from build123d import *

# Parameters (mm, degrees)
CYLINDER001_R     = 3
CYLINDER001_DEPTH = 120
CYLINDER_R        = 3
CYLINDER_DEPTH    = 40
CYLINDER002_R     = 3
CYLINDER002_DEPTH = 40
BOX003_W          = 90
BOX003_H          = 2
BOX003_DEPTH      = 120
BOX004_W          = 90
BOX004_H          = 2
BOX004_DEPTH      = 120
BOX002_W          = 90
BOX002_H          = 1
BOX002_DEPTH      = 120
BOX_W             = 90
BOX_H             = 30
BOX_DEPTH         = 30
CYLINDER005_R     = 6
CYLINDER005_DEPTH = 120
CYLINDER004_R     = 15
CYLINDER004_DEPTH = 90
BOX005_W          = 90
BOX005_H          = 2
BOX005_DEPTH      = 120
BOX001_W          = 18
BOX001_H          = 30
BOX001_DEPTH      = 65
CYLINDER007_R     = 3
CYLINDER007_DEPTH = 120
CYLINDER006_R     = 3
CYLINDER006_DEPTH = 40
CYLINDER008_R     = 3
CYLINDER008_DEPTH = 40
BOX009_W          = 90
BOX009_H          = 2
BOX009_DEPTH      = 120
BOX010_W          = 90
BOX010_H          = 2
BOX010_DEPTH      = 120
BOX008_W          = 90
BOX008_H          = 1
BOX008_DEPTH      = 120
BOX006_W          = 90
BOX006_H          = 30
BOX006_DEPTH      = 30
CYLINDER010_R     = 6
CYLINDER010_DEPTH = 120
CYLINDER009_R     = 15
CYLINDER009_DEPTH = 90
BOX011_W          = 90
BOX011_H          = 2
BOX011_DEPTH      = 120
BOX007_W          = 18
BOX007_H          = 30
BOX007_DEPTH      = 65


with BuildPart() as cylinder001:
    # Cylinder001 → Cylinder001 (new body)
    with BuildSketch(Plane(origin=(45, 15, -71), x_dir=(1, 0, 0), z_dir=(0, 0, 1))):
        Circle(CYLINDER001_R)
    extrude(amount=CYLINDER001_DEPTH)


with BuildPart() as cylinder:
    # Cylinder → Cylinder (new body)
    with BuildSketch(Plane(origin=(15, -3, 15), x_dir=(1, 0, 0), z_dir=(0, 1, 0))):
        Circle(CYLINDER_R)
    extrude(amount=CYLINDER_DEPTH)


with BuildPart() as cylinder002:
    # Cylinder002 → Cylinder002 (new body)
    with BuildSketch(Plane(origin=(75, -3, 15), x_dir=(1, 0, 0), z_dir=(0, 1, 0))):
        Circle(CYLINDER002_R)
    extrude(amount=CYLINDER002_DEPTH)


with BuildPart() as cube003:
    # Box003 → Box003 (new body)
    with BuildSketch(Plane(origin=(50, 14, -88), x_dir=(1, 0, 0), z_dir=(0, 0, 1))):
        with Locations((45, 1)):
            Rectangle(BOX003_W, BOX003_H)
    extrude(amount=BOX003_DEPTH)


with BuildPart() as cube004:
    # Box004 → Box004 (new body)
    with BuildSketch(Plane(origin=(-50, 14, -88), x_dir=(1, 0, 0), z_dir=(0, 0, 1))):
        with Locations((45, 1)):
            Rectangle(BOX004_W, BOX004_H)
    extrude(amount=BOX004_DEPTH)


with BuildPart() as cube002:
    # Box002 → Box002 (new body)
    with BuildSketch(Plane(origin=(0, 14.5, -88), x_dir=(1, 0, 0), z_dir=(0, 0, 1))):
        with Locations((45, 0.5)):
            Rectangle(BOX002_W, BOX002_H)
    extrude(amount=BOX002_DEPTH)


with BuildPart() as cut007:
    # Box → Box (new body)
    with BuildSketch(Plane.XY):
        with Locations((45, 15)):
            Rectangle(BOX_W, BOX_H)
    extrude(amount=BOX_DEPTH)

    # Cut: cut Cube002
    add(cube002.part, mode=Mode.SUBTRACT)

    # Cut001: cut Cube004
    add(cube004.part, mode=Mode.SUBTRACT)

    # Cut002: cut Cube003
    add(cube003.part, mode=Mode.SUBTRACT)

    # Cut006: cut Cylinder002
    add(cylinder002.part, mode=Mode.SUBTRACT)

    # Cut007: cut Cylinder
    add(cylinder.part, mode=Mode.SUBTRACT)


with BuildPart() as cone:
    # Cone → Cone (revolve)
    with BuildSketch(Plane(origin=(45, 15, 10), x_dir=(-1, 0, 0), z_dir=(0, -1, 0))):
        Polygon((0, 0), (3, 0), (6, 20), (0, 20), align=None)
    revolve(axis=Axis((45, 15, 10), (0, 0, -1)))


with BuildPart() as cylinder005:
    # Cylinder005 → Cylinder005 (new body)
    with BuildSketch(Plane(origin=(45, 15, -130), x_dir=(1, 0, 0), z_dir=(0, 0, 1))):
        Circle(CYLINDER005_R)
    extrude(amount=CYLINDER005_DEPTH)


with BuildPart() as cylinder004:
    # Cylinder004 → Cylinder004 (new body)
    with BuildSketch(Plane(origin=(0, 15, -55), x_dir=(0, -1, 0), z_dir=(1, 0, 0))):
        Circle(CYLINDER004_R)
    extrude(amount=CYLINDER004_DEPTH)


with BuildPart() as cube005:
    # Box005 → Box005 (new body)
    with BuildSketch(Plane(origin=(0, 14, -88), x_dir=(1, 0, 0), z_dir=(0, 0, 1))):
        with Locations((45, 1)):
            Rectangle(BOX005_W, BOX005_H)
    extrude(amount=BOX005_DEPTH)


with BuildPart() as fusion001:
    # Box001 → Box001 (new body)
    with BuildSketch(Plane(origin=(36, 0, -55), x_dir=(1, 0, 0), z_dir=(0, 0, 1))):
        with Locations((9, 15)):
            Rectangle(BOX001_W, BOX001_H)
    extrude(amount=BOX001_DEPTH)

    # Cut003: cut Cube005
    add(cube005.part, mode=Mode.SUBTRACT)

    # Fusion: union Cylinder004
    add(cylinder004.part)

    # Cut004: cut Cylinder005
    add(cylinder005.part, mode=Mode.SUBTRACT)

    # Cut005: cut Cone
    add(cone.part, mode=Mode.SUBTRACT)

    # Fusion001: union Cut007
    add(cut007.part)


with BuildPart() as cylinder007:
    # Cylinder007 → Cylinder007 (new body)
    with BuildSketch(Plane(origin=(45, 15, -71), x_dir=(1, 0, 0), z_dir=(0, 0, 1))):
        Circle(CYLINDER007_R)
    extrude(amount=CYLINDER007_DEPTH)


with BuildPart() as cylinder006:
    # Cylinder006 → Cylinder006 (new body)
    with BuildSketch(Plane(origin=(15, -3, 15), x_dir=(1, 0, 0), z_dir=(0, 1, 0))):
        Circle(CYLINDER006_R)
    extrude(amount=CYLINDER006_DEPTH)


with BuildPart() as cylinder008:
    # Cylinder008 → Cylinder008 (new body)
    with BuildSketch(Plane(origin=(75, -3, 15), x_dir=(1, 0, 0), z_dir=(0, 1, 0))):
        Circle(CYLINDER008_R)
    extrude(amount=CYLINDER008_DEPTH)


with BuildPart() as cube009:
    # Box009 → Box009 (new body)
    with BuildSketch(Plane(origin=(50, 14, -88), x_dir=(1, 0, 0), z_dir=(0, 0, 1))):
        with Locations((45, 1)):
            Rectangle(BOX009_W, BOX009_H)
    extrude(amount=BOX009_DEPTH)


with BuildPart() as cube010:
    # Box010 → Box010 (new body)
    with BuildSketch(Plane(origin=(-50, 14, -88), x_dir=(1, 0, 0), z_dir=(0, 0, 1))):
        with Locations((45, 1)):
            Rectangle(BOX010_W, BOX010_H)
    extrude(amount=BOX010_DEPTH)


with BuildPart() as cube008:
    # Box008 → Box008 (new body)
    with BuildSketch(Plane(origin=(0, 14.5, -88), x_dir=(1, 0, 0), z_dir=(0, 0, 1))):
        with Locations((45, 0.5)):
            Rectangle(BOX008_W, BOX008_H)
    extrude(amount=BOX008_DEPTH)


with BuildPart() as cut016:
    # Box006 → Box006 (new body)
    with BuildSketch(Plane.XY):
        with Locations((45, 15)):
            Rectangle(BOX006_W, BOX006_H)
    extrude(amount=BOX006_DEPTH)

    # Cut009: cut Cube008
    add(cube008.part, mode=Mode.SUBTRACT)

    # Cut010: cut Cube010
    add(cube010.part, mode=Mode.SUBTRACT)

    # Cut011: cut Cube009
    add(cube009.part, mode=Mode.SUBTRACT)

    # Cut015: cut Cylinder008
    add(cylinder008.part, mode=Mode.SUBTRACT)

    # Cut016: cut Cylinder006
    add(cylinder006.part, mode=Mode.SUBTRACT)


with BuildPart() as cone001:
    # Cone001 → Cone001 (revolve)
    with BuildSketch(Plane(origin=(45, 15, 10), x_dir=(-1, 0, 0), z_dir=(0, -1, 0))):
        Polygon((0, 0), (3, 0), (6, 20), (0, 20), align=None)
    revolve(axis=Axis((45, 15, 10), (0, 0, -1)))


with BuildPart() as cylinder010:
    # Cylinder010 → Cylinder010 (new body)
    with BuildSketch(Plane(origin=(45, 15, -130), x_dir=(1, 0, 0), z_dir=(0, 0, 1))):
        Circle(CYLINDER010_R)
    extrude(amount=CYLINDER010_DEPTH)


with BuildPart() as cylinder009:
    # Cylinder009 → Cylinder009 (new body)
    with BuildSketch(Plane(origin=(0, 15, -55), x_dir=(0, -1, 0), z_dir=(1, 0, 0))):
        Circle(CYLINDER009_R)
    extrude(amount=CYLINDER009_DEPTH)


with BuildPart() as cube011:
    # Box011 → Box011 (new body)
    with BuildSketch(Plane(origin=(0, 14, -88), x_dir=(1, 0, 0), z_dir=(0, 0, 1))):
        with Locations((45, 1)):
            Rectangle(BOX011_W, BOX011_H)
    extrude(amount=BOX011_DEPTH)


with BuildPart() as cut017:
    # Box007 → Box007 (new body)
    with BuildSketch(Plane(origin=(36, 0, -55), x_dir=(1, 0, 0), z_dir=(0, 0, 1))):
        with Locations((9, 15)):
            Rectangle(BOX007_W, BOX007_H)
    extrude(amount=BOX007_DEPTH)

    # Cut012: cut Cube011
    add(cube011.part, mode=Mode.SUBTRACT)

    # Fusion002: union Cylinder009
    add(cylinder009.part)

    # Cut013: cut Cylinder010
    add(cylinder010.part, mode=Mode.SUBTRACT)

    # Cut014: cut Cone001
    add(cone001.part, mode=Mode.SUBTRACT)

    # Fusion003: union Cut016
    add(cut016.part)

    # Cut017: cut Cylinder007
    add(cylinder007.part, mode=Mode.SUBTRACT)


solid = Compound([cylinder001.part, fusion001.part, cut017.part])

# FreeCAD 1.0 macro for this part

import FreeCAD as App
import Part
import Sketcher

V = App.Vector

doc = App.newDocument("Part")
body = doc.addObject("PartDesign::Body", "Body")

sketch1 = body.newObject("Sketcher::SketchObject", "Sketch")
sketch1.AttachmentSupport = (doc.getObject("XY_Plane"), [""])
sketch1.MapMode = "FlatFace"
sketch1.AttachmentOffset = App.Placement(V(0, 0, -71), App.Rotation())
sketch1.addGeometry(Part.Circle(V(45, 15, 0), V(0, 0, 1), 3), False)
sketch1.addConstraint(Sketcher.Constraint("Diameter", 0, 6.0))
sketch1.addConstraint(Sketcher.Constraint("DistanceX", -1, 1, 0, 3, 45.0))
sketch1.addConstraint(Sketcher.Constraint("DistanceY", -1, 1, 0, 3, 15.0))
pad1 = body.newObject("PartDesign::Pad", "Pad")
pad1.Profile = sketch1
pad1.Length = 120
body2 = doc.addObject("PartDesign::Body", "Body001")

sketch2 = body2.newObject("Sketcher::SketchObject", "Sketch001")
sketch2.AttachmentSupport = (doc.getObject("XZ_Plane001"), [""])
sketch2.MapMode = "FlatFace"
sketch2.AttachmentOffset = App.Placement(V(0, 0, 3), App.Rotation())
sketch2.addGeometry(Part.Circle(V(15, 15, 0), V(0, 0, 1), 3), False)
sketch2.addConstraint(Sketcher.Constraint("Diameter", 0, 6.0))
sketch2.addConstraint(Sketcher.Constraint("DistanceX", -1, 1, 0, 3, 15.0))
sketch2.addConstraint(Sketcher.Constraint("DistanceY", -1, 1, 0, 3, 15.0))
pad2 = body2.newObject("PartDesign::Pad", "Pad001")
pad2.Profile = sketch2
pad2.Length = 40
pad2.Reversed = True
body3 = doc.addObject("PartDesign::Body", "Body002")

sketch3 = body3.newObject("Sketcher::SketchObject", "Sketch002")
sketch3.AttachmentSupport = (doc.getObject("XZ_Plane002"), [""])
sketch3.MapMode = "FlatFace"
sketch3.AttachmentOffset = App.Placement(V(0, 0, 3), App.Rotation())
sketch3.addGeometry(Part.Circle(V(75, 15, 0), V(0, 0, 1), 3), False)
sketch3.addConstraint(Sketcher.Constraint("Diameter", 0, 6.0))
sketch3.addConstraint(Sketcher.Constraint("DistanceX", -1, 1, 0, 3, 75.0))
sketch3.addConstraint(Sketcher.Constraint("DistanceY", -1, 1, 0, 3, 15.0))
pad3 = body3.newObject("PartDesign::Pad", "Pad002")
pad3.Profile = sketch3
pad3.Length = 40
pad3.Reversed = True
body4 = doc.addObject("PartDesign::Body", "Body003")

sketch4 = body4.newObject("Sketcher::SketchObject", "Sketch003")
sketch4.AttachmentSupport = (doc.getObject("XY_Plane003"), [""])
sketch4.MapMode = "FlatFace"
sketch4.AttachmentOffset = App.Placement(V(0, 0, -88), App.Rotation())
sketch4.addGeometry(Part.LineSegment(V(50, 16, 0), V(50, 14, 0)), False)
sketch4.addGeometry(Part.LineSegment(V(50, 14, 0), V(140, 14, 0)), False)
sketch4.addGeometry(Part.LineSegment(V(140, 14, 0), V(140, 16, 0)), False)
sketch4.addGeometry(Part.LineSegment(V(140, 16, 0), V(50, 16, 0)), False)
sketch4.addConstraint(Sketcher.Constraint("Coincident", 0, 2, 1, 1))
sketch4.addConstraint(Sketcher.Constraint("Coincident", 1, 2, 2, 1))
sketch4.addConstraint(Sketcher.Constraint("Coincident", 2, 2, 3, 1))
sketch4.addConstraint(Sketcher.Constraint("Coincident", 3, 2, 0, 1))
sketch4.addConstraint(Sketcher.Constraint("Vertical", 0))
sketch4.addConstraint(Sketcher.Constraint("Horizontal", 1))
sketch4.addConstraint(Sketcher.Constraint("Vertical", 2))
sketch4.addConstraint(Sketcher.Constraint("Horizontal", 3))
sketch4.addConstraint(Sketcher.Constraint("DistanceX", 1, 1, 1, 2, 90.0))
sketch4.addConstraint(Sketcher.Constraint("DistanceY", 0, 2, 0, 1, 2.0))
sketch4.addConstraint(Sketcher.Constraint("DistanceX", -1, 1, 0, 2, 50.0))
sketch4.addConstraint(Sketcher.Constraint("DistanceY", -1, 1, 0, 2, 14.0))
pad4 = body4.newObject("PartDesign::Pad", "Pad003")
pad4.Profile = sketch4
pad4.Length = 120
body5 = doc.addObject("PartDesign::Body", "Body004")

sketch5 = body5.newObject("Sketcher::SketchObject", "Sketch004")
sketch5.AttachmentSupport = (doc.getObject("XY_Plane004"), [""])
sketch5.MapMode = "FlatFace"
sketch5.AttachmentOffset = App.Placement(V(0, 0, -88), App.Rotation())
sketch5.addGeometry(Part.LineSegment(V(-50, 16, 0), V(-50, 14, 0)), False)
sketch5.addGeometry(Part.LineSegment(V(-50, 14, 0), V(40, 14, 0)), False)
sketch5.addGeometry(Part.LineSegment(V(40, 14, 0), V(40, 16, 0)), False)
sketch5.addGeometry(Part.LineSegment(V(40, 16, 0), V(-50, 16, 0)), False)
sketch5.addConstraint(Sketcher.Constraint("Coincident", 0, 2, 1, 1))
sketch5.addConstraint(Sketcher.Constraint("Coincident", 1, 2, 2, 1))
sketch5.addConstraint(Sketcher.Constraint("Coincident", 2, 2, 3, 1))
sketch5.addConstraint(Sketcher.Constraint("Coincident", 3, 2, 0, 1))
sketch5.addConstraint(Sketcher.Constraint("Vertical", 0))
sketch5.addConstraint(Sketcher.Constraint("Horizontal", 1))
sketch5.addConstraint(Sketcher.Constraint("Vertical", 2))
sketch5.addConstraint(Sketcher.Constraint("Horizontal", 3))
sketch5.addConstraint(Sketcher.Constraint("DistanceX", 1, 1, 1, 2, 90.0))
sketch5.addConstraint(Sketcher.Constraint("DistanceY", 0, 2, 0, 1, 2.0))
sketch5.addConstraint(Sketcher.Constraint("DistanceX", 0, 2, -1, 1, 50.0))
sketch5.addConstraint(Sketcher.Constraint("DistanceY", -1, 1, 0, 2, 14.0))
pad5 = body5.newObject("PartDesign::Pad", "Pad004")
pad5.Profile = sketch5
pad5.Length = 120
body6 = doc.addObject("PartDesign::Body", "Body005")

sketch6 = body6.newObject("Sketcher::SketchObject", "Sketch005")
sketch6.AttachmentSupport = (doc.getObject("XY_Plane005"), [""])
sketch6.MapMode = "FlatFace"
sketch6.AttachmentOffset = App.Placement(V(0, 0, -88), App.Rotation())
sketch6.addGeometry(Part.LineSegment(V(0, 15.5, 0), V(0, 14.5, 0)), False)
sketch6.addGeometry(Part.LineSegment(V(0, 14.5, 0), V(90, 14.5, 0)), False)
sketch6.addGeometry(Part.LineSegment(V(90, 14.5, 0), V(90, 15.5, 0)), False)
sketch6.addGeometry(Part.LineSegment(V(90, 15.5, 0), V(0, 15.5, 0)), False)
sketch6.addConstraint(Sketcher.Constraint("Coincident", 0, 2, 1, 1))
sketch6.addConstraint(Sketcher.Constraint("Coincident", 1, 2, 2, 1))
sketch6.addConstraint(Sketcher.Constraint("Coincident", 2, 2, 3, 1))
sketch6.addConstraint(Sketcher.Constraint("Coincident", 3, 2, 0, 1))
sketch6.addConstraint(Sketcher.Constraint("Vertical", 0))
sketch6.addConstraint(Sketcher.Constraint("Horizontal", 1))
sketch6.addConstraint(Sketcher.Constraint("Vertical", 2))
sketch6.addConstraint(Sketcher.Constraint("Horizontal", 3))
sketch6.addConstraint(Sketcher.Constraint("PointOnObject", 0, 2, -2))
sketch6.addConstraint(Sketcher.Constraint("DistanceX", 1, 1, 1, 2, 90.0))
sketch6.addConstraint(Sketcher.Constraint("DistanceY", 0, 2, 0, 1, 1.0))
sketch6.addConstraint(Sketcher.Constraint("DistanceY", -1, 1, 0, 2, 14.5))
pad6 = body6.newObject("PartDesign::Pad", "Pad005")
pad6.Profile = sketch6
pad6.Length = 120
body7 = doc.addObject("PartDesign::Body", "Body006")
body7.AllowCompound = True

sketch7 = body7.newObject("Sketcher::SketchObject", "Sketch006")
sketch7.AttachmentSupport = (doc.getObject("XY_Plane006"), [""])
sketch7.MapMode = "FlatFace"
sketch7.addGeometry(Part.LineSegment(V(0, 30, 0), V(0, 0, 0)), False)
sketch7.addGeometry(Part.LineSegment(V(0, 0, 0), V(90, 0, 0)), False)
sketch7.addGeometry(Part.LineSegment(V(90, 0, 0), V(90, 30, 0)), False)
sketch7.addGeometry(Part.LineSegment(V(90, 30, 0), V(0, 30, 0)), False)
sketch7.addConstraint(Sketcher.Constraint("Coincident", 0, 2, 1, 1))
sketch7.addConstraint(Sketcher.Constraint("Coincident", 1, 2, 2, 1))
sketch7.addConstraint(Sketcher.Constraint("Coincident", 2, 2, 3, 1))
sketch7.addConstraint(Sketcher.Constraint("Coincident", 3, 2, 0, 1))
sketch7.addConstraint(Sketcher.Constraint("Vertical", 0))
sketch7.addConstraint(Sketcher.Constraint("Horizontal", 1))
sketch7.addConstraint(Sketcher.Constraint("Vertical", 2))
sketch7.addConstraint(Sketcher.Constraint("Horizontal", 3))
sketch7.addConstraint(Sketcher.Constraint("Coincident", 0, 2, -1, 1))
sketch7.addConstraint(Sketcher.Constraint("DistanceX", 1, 1, 1, 2, 90.0))
sketch7.addConstraint(Sketcher.Constraint("DistanceY", 0, 2, 0, 1, 30.0))
pad7 = body7.newObject("PartDesign::Pad", "Pad006")
pad7.Profile = sketch7
pad7.Length = 30
doc.recompute()

boolean = body7.newObject("PartDesign::Boolean", "Boolean")
boolean.Type = "Cut"
boolean.addObjects([body6])
doc.recompute()

boolean2 = body7.newObject("PartDesign::Boolean", "Boolean001")
boolean2.Type = "Cut"
boolean2.addObjects([body5])
doc.recompute()

boolean3 = body7.newObject("PartDesign::Boolean", "Boolean002")
boolean3.Type = "Cut"
boolean3.addObjects([body4])
doc.recompute()

boolean4 = body7.newObject("PartDesign::Boolean", "Boolean003")
boolean4.Type = "Cut"
boolean4.addObjects([body3])
doc.recompute()

boolean5 = body7.newObject("PartDesign::Boolean", "Boolean004")
boolean5.Type = "Cut"
boolean5.addObjects([body2])
body8 = doc.addObject("PartDesign::Body", "Body007")

sketch8 = body8.newObject("Sketcher::SketchObject", "Sketch007")
sketch8.AttachmentSupport = (doc.getObject("XZ_Plane007"), [""])
sketch8.MapMode = "FlatFace"
sketch8.AttachmentOffset = App.Placement(V(0, 0, -15), App.Rotation())
sketch8.addGeometry(Part.LineSegment(V(45, 10, 0), V(42, 10, 0)), False)
sketch8.addGeometry(Part.LineSegment(V(42, 10, 0), V(39, -10, 0)), False)
sketch8.addGeometry(Part.LineSegment(V(39, -10, 0), V(45, -10, 0)), False)
sketch8.addGeometry(Part.LineSegment(V(45, -10, 0), V(45, 10, 0)), False)
sketch8.addGeometry(Part.LineSegment(V(45, 10, 0), V(45, -10, 0)), True)
sketch8.addConstraint(Sketcher.Constraint("Coincident", 0, 2, 1, 1))
sketch8.addConstraint(Sketcher.Constraint("Coincident", 1, 2, 2, 1))
sketch8.addConstraint(Sketcher.Constraint("Coincident", 2, 2, 3, 1))
sketch8.addConstraint(Sketcher.Constraint("Coincident", 3, 2, 0, 1))
sketch8.addConstraint(Sketcher.Constraint("Horizontal", 0))
sketch8.addConstraint(Sketcher.Constraint("Horizontal", 2))
sketch8.addConstraint(Sketcher.Constraint("Vertical", 3))
sketch8.addConstraint(Sketcher.Constraint("Vertical", 4))
sketch8.addConstraint(Sketcher.Constraint("Coincident", 4, 1, 3, 2))
sketch8.addConstraint(Sketcher.Constraint("Horizontal", 1, 2, 4, 2))
sketch8.addConstraint(Sketcher.Constraint("DistanceX", 0, 2, 0, 1, 3.0))
sketch8.addConstraint(Sketcher.Constraint("DistanceX", 2, 1, 2, 2, 6.0))
sketch8.addConstraint(Sketcher.Constraint("DistanceY", 3, 1, 3, 2, 20.0))
sketch8.addConstraint(Sketcher.Constraint("DistanceX", -1, 1, 0, 2, 42.0))
sketch8.addConstraint(Sketcher.Constraint("DistanceY", -1, 1, 0, 2, 10.0))
revolution = body8.newObject("PartDesign::Revolution", "Revolution")
revolution.Profile = sketch8
revolution.ReferenceAxis = (sketch8, ["Axis0"])
revolution.Angle = 360
body9 = doc.addObject("PartDesign::Body", "Body008")

sketch9 = body9.newObject("Sketcher::SketchObject", "Sketch008")
sketch9.AttachmentSupport = (doc.getObject("XY_Plane008"), [""])
sketch9.MapMode = "FlatFace"
sketch9.AttachmentOffset = App.Placement(V(0, 0, -130), App.Rotation())
sketch9.addGeometry(Part.Circle(V(45, 15, 0), V(0, 0, 1), 6), False)
sketch9.addConstraint(Sketcher.Constraint("Diameter", 0, 12.0))
sketch9.addConstraint(Sketcher.Constraint("DistanceX", -1, 1, 0, 3, 45.0))
sketch9.addConstraint(Sketcher.Constraint("DistanceY", -1, 1, 0, 3, 15.0))
pad8 = body9.newObject("PartDesign::Pad", "Pad007")
pad8.Profile = sketch9
pad8.Length = 120
body10 = doc.addObject("PartDesign::Body", "Body009")

sketch10 = body10.newObject("Sketcher::SketchObject", "Sketch009")
sketch10.AttachmentSupport = (doc.getObject("YZ_Plane009"), [""])
sketch10.MapMode = "FlatFace"
sketch10.addGeometry(Part.Circle(V(15, -55, 0), V(0, 0, 1), 15), False)
sketch10.addConstraint(Sketcher.Constraint("Diameter", 0, 30.0))
sketch10.addConstraint(Sketcher.Constraint("DistanceX", -1, 1, 0, 3, 15.0))
sketch10.addConstraint(Sketcher.Constraint("DistanceY", 0, 3, -1, 1, 55.0))
pad9 = body10.newObject("PartDesign::Pad", "Pad008")
pad9.Profile = sketch10
pad9.Length = 90
body11 = doc.addObject("PartDesign::Body", "Body010")

sketch11 = body11.newObject("Sketcher::SketchObject", "Sketch010")
sketch11.AttachmentSupport = (doc.getObject("XY_Plane010"), [""])
sketch11.MapMode = "FlatFace"
sketch11.AttachmentOffset = App.Placement(V(0, 0, -88), App.Rotation())
sketch11.addGeometry(Part.LineSegment(V(0, 16, 0), V(0, 14, 0)), False)
sketch11.addGeometry(Part.LineSegment(V(0, 14, 0), V(90, 14, 0)), False)
sketch11.addGeometry(Part.LineSegment(V(90, 14, 0), V(90, 16, 0)), False)
sketch11.addGeometry(Part.LineSegment(V(90, 16, 0), V(0, 16, 0)), False)
sketch11.addConstraint(Sketcher.Constraint("Coincident", 0, 2, 1, 1))
sketch11.addConstraint(Sketcher.Constraint("Coincident", 1, 2, 2, 1))
sketch11.addConstraint(Sketcher.Constraint("Coincident", 2, 2, 3, 1))
sketch11.addConstraint(Sketcher.Constraint("Coincident", 3, 2, 0, 1))
sketch11.addConstraint(Sketcher.Constraint("Vertical", 0))
sketch11.addConstraint(Sketcher.Constraint("Horizontal", 1))
sketch11.addConstraint(Sketcher.Constraint("Vertical", 2))
sketch11.addConstraint(Sketcher.Constraint("Horizontal", 3))
sketch11.addConstraint(Sketcher.Constraint("PointOnObject", 0, 2, -2))
sketch11.addConstraint(Sketcher.Constraint("DistanceX", 1, 1, 1, 2, 90.0))
sketch11.addConstraint(Sketcher.Constraint("DistanceY", 0, 2, 0, 1, 2.0))
sketch11.addConstraint(Sketcher.Constraint("DistanceY", -1, 1, 0, 2, 14.0))
pad10 = body11.newObject("PartDesign::Pad", "Pad009")
pad10.Profile = sketch11
pad10.Length = 120
body12 = doc.addObject("PartDesign::Body", "Body011")
body12.AllowCompound = True

sketch12 = body12.newObject("Sketcher::SketchObject", "Sketch011")
sketch12.AttachmentSupport = (doc.getObject("XY_Plane011"), [""])
sketch12.MapMode = "FlatFace"
sketch12.AttachmentOffset = App.Placement(V(0, 0, -55), App.Rotation())
sketch12.addGeometry(Part.LineSegment(V(36, 30, 0), V(36, 0, 0)), False)
sketch12.addGeometry(Part.LineSegment(V(36, 0, 0), V(54, 0, 0)), False)
sketch12.addGeometry(Part.LineSegment(V(54, 0, 0), V(54, 30, 0)), False)
sketch12.addGeometry(Part.LineSegment(V(54, 30, 0), V(36, 30, 0)), False)
sketch12.addConstraint(Sketcher.Constraint("Coincident", 0, 2, 1, 1))
sketch12.addConstraint(Sketcher.Constraint("Coincident", 1, 2, 2, 1))
sketch12.addConstraint(Sketcher.Constraint("Coincident", 2, 2, 3, 1))
sketch12.addConstraint(Sketcher.Constraint("Coincident", 3, 2, 0, 1))
sketch12.addConstraint(Sketcher.Constraint("Vertical", 0))
sketch12.addConstraint(Sketcher.Constraint("Horizontal", 1))
sketch12.addConstraint(Sketcher.Constraint("Vertical", 2))
sketch12.addConstraint(Sketcher.Constraint("Horizontal", 3))
sketch12.addConstraint(Sketcher.Constraint("PointOnObject", 0, 2, -1))
sketch12.addConstraint(Sketcher.Constraint("DistanceX", 1, 1, 1, 2, 18.0))
sketch12.addConstraint(Sketcher.Constraint("DistanceY", 0, 2, 0, 1, 30.0))
sketch12.addConstraint(Sketcher.Constraint("DistanceX", -1, 1, 0, 2, 36.0))
pad11 = body12.newObject("PartDesign::Pad", "Pad010")
pad11.Profile = sketch12
pad11.Length = 65
doc.recompute()

boolean6 = body12.newObject("PartDesign::Boolean", "Boolean005")
boolean6.Type = "Cut"
boolean6.addObjects([body11])
doc.recompute()

boolean7 = body12.newObject("PartDesign::Boolean", "Boolean006")
boolean7.Type = "Fuse"
boolean7.addObjects([body10])
doc.recompute()

boolean8 = body12.newObject("PartDesign::Boolean", "Boolean007")
boolean8.Type = "Cut"
boolean8.addObjects([body9])
doc.recompute()

boolean9 = body12.newObject("PartDesign::Boolean", "Boolean008")
boolean9.Type = "Cut"
boolean9.addObjects([body8])
doc.recompute()

boolean10 = body12.newObject("PartDesign::Boolean", "Boolean009")
boolean10.Type = "Fuse"
boolean10.addObjects([body7])
body13 = doc.addObject("PartDesign::Body", "Body012")

sketch13 = body13.newObject("Sketcher::SketchObject", "Sketch012")
sketch13.AttachmentSupport = (doc.getObject("XY_Plane012"), [""])
sketch13.MapMode = "FlatFace"
sketch13.AttachmentOffset = App.Placement(V(0, 0, -71), App.Rotation())
sketch13.addGeometry(Part.Circle(V(45, 15, 0), V(0, 0, 1), 3), False)
sketch13.addConstraint(Sketcher.Constraint("Diameter", 0, 6.0))
sketch13.addConstraint(Sketcher.Constraint("DistanceX", -1, 1, 0, 3, 45.0))
sketch13.addConstraint(Sketcher.Constraint("DistanceY", -1, 1, 0, 3, 15.0))
pad12 = body13.newObject("PartDesign::Pad", "Pad011")
pad12.Profile = sketch13
pad12.Length = 120
body14 = doc.addObject("PartDesign::Body", "Body013")

sketch14 = body14.newObject("Sketcher::SketchObject", "Sketch013")
sketch14.AttachmentSupport = (doc.getObject("XZ_Plane013"), [""])
sketch14.MapMode = "FlatFace"
sketch14.AttachmentOffset = App.Placement(V(0, 0, 3), App.Rotation())
sketch14.addGeometry(Part.Circle(V(15, 15, 0), V(0, 0, 1), 3), False)
sketch14.addConstraint(Sketcher.Constraint("Diameter", 0, 6.0))
sketch14.addConstraint(Sketcher.Constraint("DistanceX", -1, 1, 0, 3, 15.0))
sketch14.addConstraint(Sketcher.Constraint("DistanceY", -1, 1, 0, 3, 15.0))
pad13 = body14.newObject("PartDesign::Pad", "Pad012")
pad13.Profile = sketch14
pad13.Length = 40
pad13.Reversed = True
body15 = doc.addObject("PartDesign::Body", "Body014")

sketch15 = body15.newObject("Sketcher::SketchObject", "Sketch014")
sketch15.AttachmentSupport = (doc.getObject("XZ_Plane014"), [""])
sketch15.MapMode = "FlatFace"
sketch15.AttachmentOffset = App.Placement(V(0, 0, 3), App.Rotation())
sketch15.addGeometry(Part.Circle(V(75, 15, 0), V(0, 0, 1), 3), False)
sketch15.addConstraint(Sketcher.Constraint("Diameter", 0, 6.0))
sketch15.addConstraint(Sketcher.Constraint("DistanceX", -1, 1, 0, 3, 75.0))
sketch15.addConstraint(Sketcher.Constraint("DistanceY", -1, 1, 0, 3, 15.0))
pad14 = body15.newObject("PartDesign::Pad", "Pad013")
pad14.Profile = sketch15
pad14.Length = 40
pad14.Reversed = True
body16 = doc.addObject("PartDesign::Body", "Body015")

sketch16 = body16.newObject("Sketcher::SketchObject", "Sketch015")
sketch16.AttachmentSupport = (doc.getObject("XY_Plane015"), [""])
sketch16.MapMode = "FlatFace"
sketch16.AttachmentOffset = App.Placement(V(0, 0, -88), App.Rotation())
sketch16.addGeometry(Part.LineSegment(V(50, 16, 0), V(50, 14, 0)), False)
sketch16.addGeometry(Part.LineSegment(V(50, 14, 0), V(140, 14, 0)), False)
sketch16.addGeometry(Part.LineSegment(V(140, 14, 0), V(140, 16, 0)), False)
sketch16.addGeometry(Part.LineSegment(V(140, 16, 0), V(50, 16, 0)), False)
sketch16.addConstraint(Sketcher.Constraint("Coincident", 0, 2, 1, 1))
sketch16.addConstraint(Sketcher.Constraint("Coincident", 1, 2, 2, 1))
sketch16.addConstraint(Sketcher.Constraint("Coincident", 2, 2, 3, 1))
sketch16.addConstraint(Sketcher.Constraint("Coincident", 3, 2, 0, 1))
sketch16.addConstraint(Sketcher.Constraint("Vertical", 0))
sketch16.addConstraint(Sketcher.Constraint("Horizontal", 1))
sketch16.addConstraint(Sketcher.Constraint("Vertical", 2))
sketch16.addConstraint(Sketcher.Constraint("Horizontal", 3))
sketch16.addConstraint(Sketcher.Constraint("DistanceX", 1, 1, 1, 2, 90.0))
sketch16.addConstraint(Sketcher.Constraint("DistanceY", 0, 2, 0, 1, 2.0))
sketch16.addConstraint(Sketcher.Constraint("DistanceX", -1, 1, 0, 2, 50.0))
sketch16.addConstraint(Sketcher.Constraint("DistanceY", -1, 1, 0, 2, 14.0))
pad15 = body16.newObject("PartDesign::Pad", "Pad014")
pad15.Profile = sketch16
pad15.Length = 120
body17 = doc.addObject("PartDesign::Body", "Body016")

sketch17 = body17.newObject("Sketcher::SketchObject", "Sketch016")
sketch17.AttachmentSupport = (doc.getObject("XY_Plane016"), [""])
sketch17.MapMode = "FlatFace"
sketch17.AttachmentOffset = App.Placement(V(0, 0, -88), App.Rotation())
sketch17.addGeometry(Part.LineSegment(V(-50, 16, 0), V(-50, 14, 0)), False)
sketch17.addGeometry(Part.LineSegment(V(-50, 14, 0), V(40, 14, 0)), False)
sketch17.addGeometry(Part.LineSegment(V(40, 14, 0), V(40, 16, 0)), False)
sketch17.addGeometry(Part.LineSegment(V(40, 16, 0), V(-50, 16, 0)), False)
sketch17.addConstraint(Sketcher.Constraint("Coincident", 0, 2, 1, 1))
sketch17.addConstraint(Sketcher.Constraint("Coincident", 1, 2, 2, 1))
sketch17.addConstraint(Sketcher.Constraint("Coincident", 2, 2, 3, 1))
sketch17.addConstraint(Sketcher.Constraint("Coincident", 3, 2, 0, 1))
sketch17.addConstraint(Sketcher.Constraint("Vertical", 0))
sketch17.addConstraint(Sketcher.Constraint("Horizontal", 1))
sketch17.addConstraint(Sketcher.Constraint("Vertical", 2))
sketch17.addConstraint(Sketcher.Constraint("Horizontal", 3))
sketch17.addConstraint(Sketcher.Constraint("DistanceX", 1, 1, 1, 2, 90.0))
sketch17.addConstraint(Sketcher.Constraint("DistanceY", 0, 2, 0, 1, 2.0))
sketch17.addConstraint(Sketcher.Constraint("DistanceX", 0, 2, -1, 1, 50.0))
sketch17.addConstraint(Sketcher.Constraint("DistanceY", -1, 1, 0, 2, 14.0))
pad16 = body17.newObject("PartDesign::Pad", "Pad015")
pad16.Profile = sketch17
pad16.Length = 120
body18 = doc.addObject("PartDesign::Body", "Body017")

sketch18 = body18.newObject("Sketcher::SketchObject", "Sketch017")
sketch18.AttachmentSupport = (doc.getObject("XY_Plane017"), [""])
sketch18.MapMode = "FlatFace"
sketch18.AttachmentOffset = App.Placement(V(0, 0, -88), App.Rotation())
sketch18.addGeometry(Part.LineSegment(V(0, 15.5, 0), V(0, 14.5, 0)), False)
sketch18.addGeometry(Part.LineSegment(V(0, 14.5, 0), V(90, 14.5, 0)), False)
sketch18.addGeometry(Part.LineSegment(V(90, 14.5, 0), V(90, 15.5, 0)), False)
sketch18.addGeometry(Part.LineSegment(V(90, 15.5, 0), V(0, 15.5, 0)), False)
sketch18.addConstraint(Sketcher.Constraint("Coincident", 0, 2, 1, 1))
sketch18.addConstraint(Sketcher.Constraint("Coincident", 1, 2, 2, 1))
sketch18.addConstraint(Sketcher.Constraint("Coincident", 2, 2, 3, 1))
sketch18.addConstraint(Sketcher.Constraint("Coincident", 3, 2, 0, 1))
sketch18.addConstraint(Sketcher.Constraint("Vertical", 0))
sketch18.addConstraint(Sketcher.Constraint("Horizontal", 1))
sketch18.addConstraint(Sketcher.Constraint("Vertical", 2))
sketch18.addConstraint(Sketcher.Constraint("Horizontal", 3))
sketch18.addConstraint(Sketcher.Constraint("PointOnObject", 0, 2, -2))
sketch18.addConstraint(Sketcher.Constraint("DistanceX", 1, 1, 1, 2, 90.0))
sketch18.addConstraint(Sketcher.Constraint("DistanceY", 0, 2, 0, 1, 1.0))
sketch18.addConstraint(Sketcher.Constraint("DistanceY", -1, 1, 0, 2, 14.5))
pad17 = body18.newObject("PartDesign::Pad", "Pad016")
pad17.Profile = sketch18
pad17.Length = 120
body19 = doc.addObject("PartDesign::Body", "Body018")
body19.AllowCompound = True

sketch19 = body19.newObject("Sketcher::SketchObject", "Sketch018")
sketch19.AttachmentSupport = (doc.getObject("XY_Plane018"), [""])
sketch19.MapMode = "FlatFace"
sketch19.addGeometry(Part.LineSegment(V(0, 30, 0), V(0, 0, 0)), False)
sketch19.addGeometry(Part.LineSegment(V(0, 0, 0), V(90, 0, 0)), False)
sketch19.addGeometry(Part.LineSegment(V(90, 0, 0), V(90, 30, 0)), False)
sketch19.addGeometry(Part.LineSegment(V(90, 30, 0), V(0, 30, 0)), False)
sketch19.addConstraint(Sketcher.Constraint("Coincident", 0, 2, 1, 1))
sketch19.addConstraint(Sketcher.Constraint("Coincident", 1, 2, 2, 1))
sketch19.addConstraint(Sketcher.Constraint("Coincident", 2, 2, 3, 1))
sketch19.addConstraint(Sketcher.Constraint("Coincident", 3, 2, 0, 1))
sketch19.addConstraint(Sketcher.Constraint("Vertical", 0))
sketch19.addConstraint(Sketcher.Constraint("Horizontal", 1))
sketch19.addConstraint(Sketcher.Constraint("Vertical", 2))
sketch19.addConstraint(Sketcher.Constraint("Horizontal", 3))
sketch19.addConstraint(Sketcher.Constraint("Coincident", 0, 2, -1, 1))
sketch19.addConstraint(Sketcher.Constraint("DistanceX", 1, 1, 1, 2, 90.0))
sketch19.addConstraint(Sketcher.Constraint("DistanceY", 0, 2, 0, 1, 30.0))
pad18 = body19.newObject("PartDesign::Pad", "Pad017")
pad18.Profile = sketch19
pad18.Length = 30
doc.recompute()

boolean11 = body19.newObject("PartDesign::Boolean", "Boolean010")
boolean11.Type = "Cut"
boolean11.addObjects([body18])
doc.recompute()

boolean12 = body19.newObject("PartDesign::Boolean", "Boolean011")
boolean12.Type = "Cut"
boolean12.addObjects([body17])
doc.recompute()

boolean13 = body19.newObject("PartDesign::Boolean", "Boolean012")
boolean13.Type = "Cut"
boolean13.addObjects([body16])
doc.recompute()

boolean14 = body19.newObject("PartDesign::Boolean", "Boolean013")
boolean14.Type = "Cut"
boolean14.addObjects([body15])
doc.recompute()

boolean15 = body19.newObject("PartDesign::Boolean", "Boolean014")
boolean15.Type = "Cut"
boolean15.addObjects([body14])
body20 = doc.addObject("PartDesign::Body", "Body019")

sketch20 = body20.newObject("Sketcher::SketchObject", "Sketch019")
sketch20.AttachmentSupport = (doc.getObject("XZ_Plane019"), [""])
sketch20.MapMode = "FlatFace"
sketch20.AttachmentOffset = App.Placement(V(0, 0, -15), App.Rotation())
sketch20.addGeometry(Part.LineSegment(V(45, 10, 0), V(42, 10, 0)), False)
sketch20.addGeometry(Part.LineSegment(V(42, 10, 0), V(39, -10, 0)), False)
sketch20.addGeometry(Part.LineSegment(V(39, -10, 0), V(45, -10, 0)), False)
sketch20.addGeometry(Part.LineSegment(V(45, -10, 0), V(45, 10, 0)), False)
sketch20.addGeometry(Part.LineSegment(V(45, 10, 0), V(45, -10, 0)), True)
sketch20.addConstraint(Sketcher.Constraint("Coincident", 0, 2, 1, 1))
sketch20.addConstraint(Sketcher.Constraint("Coincident", 1, 2, 2, 1))
sketch20.addConstraint(Sketcher.Constraint("Coincident", 2, 2, 3, 1))
sketch20.addConstraint(Sketcher.Constraint("Coincident", 3, 2, 0, 1))
sketch20.addConstraint(Sketcher.Constraint("Horizontal", 0))
sketch20.addConstraint(Sketcher.Constraint("Horizontal", 2))
sketch20.addConstraint(Sketcher.Constraint("Vertical", 3))
sketch20.addConstraint(Sketcher.Constraint("Vertical", 4))
sketch20.addConstraint(Sketcher.Constraint("Coincident", 4, 1, 3, 2))
sketch20.addConstraint(Sketcher.Constraint("Horizontal", 1, 2, 4, 2))
sketch20.addConstraint(Sketcher.Constraint("DistanceX", 0, 2, 0, 1, 3.0))
sketch20.addConstraint(Sketcher.Constraint("DistanceX", 2, 1, 2, 2, 6.0))
sketch20.addConstraint(Sketcher.Constraint("DistanceY", 3, 1, 3, 2, 20.0))
sketch20.addConstraint(Sketcher.Constraint("DistanceX", -1, 1, 0, 2, 42.0))
sketch20.addConstraint(Sketcher.Constraint("DistanceY", -1, 1, 0, 2, 10.0))
revolution2 = body20.newObject("PartDesign::Revolution", "Revolution001")
revolution2.Profile = sketch20
revolution2.ReferenceAxis = (sketch20, ["Axis0"])
revolution2.Angle = 360
body21 = doc.addObject("PartDesign::Body", "Body020")

sketch21 = body21.newObject("Sketcher::SketchObject", "Sketch020")
sketch21.AttachmentSupport = (doc.getObject("XY_Plane020"), [""])
sketch21.MapMode = "FlatFace"
sketch21.AttachmentOffset = App.Placement(V(0, 0, -130), App.Rotation())
sketch21.addGeometry(Part.Circle(V(45, 15, 0), V(0, 0, 1), 6), False)
sketch21.addConstraint(Sketcher.Constraint("Diameter", 0, 12.0))
sketch21.addConstraint(Sketcher.Constraint("DistanceX", -1, 1, 0, 3, 45.0))
sketch21.addConstraint(Sketcher.Constraint("DistanceY", -1, 1, 0, 3, 15.0))
pad19 = body21.newObject("PartDesign::Pad", "Pad018")
pad19.Profile = sketch21
pad19.Length = 120
body22 = doc.addObject("PartDesign::Body", "Body021")

sketch22 = body22.newObject("Sketcher::SketchObject", "Sketch021")
sketch22.AttachmentSupport = (doc.getObject("YZ_Plane021"), [""])
sketch22.MapMode = "FlatFace"
sketch22.addGeometry(Part.Circle(V(15, -55, 0), V(0, 0, 1), 15), False)
sketch22.addConstraint(Sketcher.Constraint("Diameter", 0, 30.0))
sketch22.addConstraint(Sketcher.Constraint("DistanceX", -1, 1, 0, 3, 15.0))
sketch22.addConstraint(Sketcher.Constraint("DistanceY", 0, 3, -1, 1, 55.0))
pad20 = body22.newObject("PartDesign::Pad", "Pad019")
pad20.Profile = sketch22
pad20.Length = 90
body23 = doc.addObject("PartDesign::Body", "Body022")

sketch23 = body23.newObject("Sketcher::SketchObject", "Sketch022")
sketch23.AttachmentSupport = (doc.getObject("XY_Plane022"), [""])
sketch23.MapMode = "FlatFace"
sketch23.AttachmentOffset = App.Placement(V(0, 0, -88), App.Rotation())
sketch23.addGeometry(Part.LineSegment(V(0, 16, 0), V(0, 14, 0)), False)
sketch23.addGeometry(Part.LineSegment(V(0, 14, 0), V(90, 14, 0)), False)
sketch23.addGeometry(Part.LineSegment(V(90, 14, 0), V(90, 16, 0)), False)
sketch23.addGeometry(Part.LineSegment(V(90, 16, 0), V(0, 16, 0)), False)
sketch23.addConstraint(Sketcher.Constraint("Coincident", 0, 2, 1, 1))
sketch23.addConstraint(Sketcher.Constraint("Coincident", 1, 2, 2, 1))
sketch23.addConstraint(Sketcher.Constraint("Coincident", 2, 2, 3, 1))
sketch23.addConstraint(Sketcher.Constraint("Coincident", 3, 2, 0, 1))
sketch23.addConstraint(Sketcher.Constraint("Vertical", 0))
sketch23.addConstraint(Sketcher.Constraint("Horizontal", 1))
sketch23.addConstraint(Sketcher.Constraint("Vertical", 2))
sketch23.addConstraint(Sketcher.Constraint("Horizontal", 3))
sketch23.addConstraint(Sketcher.Constraint("PointOnObject", 0, 2, -2))
sketch23.addConstraint(Sketcher.Constraint("DistanceX", 1, 1, 1, 2, 90.0))
sketch23.addConstraint(Sketcher.Constraint("DistanceY", 0, 2, 0, 1, 2.0))
sketch23.addConstraint(Sketcher.Constraint("DistanceY", -1, 1, 0, 2, 14.0))
pad21 = body23.newObject("PartDesign::Pad", "Pad020")
pad21.Profile = sketch23
pad21.Length = 120
body24 = doc.addObject("PartDesign::Body", "Body023")
body24.AllowCompound = True

sketch24 = body24.newObject("Sketcher::SketchObject", "Sketch023")
sketch24.AttachmentSupport = (doc.getObject("XY_Plane023"), [""])
sketch24.MapMode = "FlatFace"
sketch24.AttachmentOffset = App.Placement(V(0, 0, -55), App.Rotation())
sketch24.addGeometry(Part.LineSegment(V(36, 30, 0), V(36, 0, 0)), False)
sketch24.addGeometry(Part.LineSegment(V(36, 0, 0), V(54, 0, 0)), False)
sketch24.addGeometry(Part.LineSegment(V(54, 0, 0), V(54, 30, 0)), False)
sketch24.addGeometry(Part.LineSegment(V(54, 30, 0), V(36, 30, 0)), False)
sketch24.addConstraint(Sketcher.Constraint("Coincident", 0, 2, 1, 1))
sketch24.addConstraint(Sketcher.Constraint("Coincident", 1, 2, 2, 1))
sketch24.addConstraint(Sketcher.Constraint("Coincident", 2, 2, 3, 1))
sketch24.addConstraint(Sketcher.Constraint("Coincident", 3, 2, 0, 1))
sketch24.addConstraint(Sketcher.Constraint("Vertical", 0))
sketch24.addConstraint(Sketcher.Constraint("Horizontal", 1))
sketch24.addConstraint(Sketcher.Constraint("Vertical", 2))
sketch24.addConstraint(Sketcher.Constraint("Horizontal", 3))
sketch24.addConstraint(Sketcher.Constraint("PointOnObject", 0, 2, -1))
sketch24.addConstraint(Sketcher.Constraint("DistanceX", 1, 1, 1, 2, 18.0))
sketch24.addConstraint(Sketcher.Constraint("DistanceY", 0, 2, 0, 1, 30.0))
sketch24.addConstraint(Sketcher.Constraint("DistanceX", -1, 1, 0, 2, 36.0))
pad22 = body24.newObject("PartDesign::Pad", "Pad021")
pad22.Profile = sketch24
pad22.Length = 65
doc.recompute()

boolean16 = body24.newObject("PartDesign::Boolean", "Boolean015")
boolean16.Type = "Cut"
boolean16.addObjects([body23])
doc.recompute()

boolean17 = body24.newObject("PartDesign::Boolean", "Boolean016")
boolean17.Type = "Fuse"
boolean17.addObjects([body22])
doc.recompute()

boolean18 = body24.newObject("PartDesign::Boolean", "Boolean017")
boolean18.Type = "Cut"
boolean18.addObjects([body21])
doc.recompute()

boolean19 = body24.newObject("PartDesign::Boolean", "Boolean018")
boolean19.Type = "Cut"
boolean19.addObjects([body20])
doc.recompute()

boolean20 = body24.newObject("PartDesign::Boolean", "Boolean019")
boolean20.Type = "Fuse"
boolean20.addObjects([body19])
doc.recompute()

boolean21 = body24.newObject("PartDesign::Boolean", "Boolean020")
boolean21.Type = "Cut"
boolean21.addObjects([body13])

doc.recompute()
